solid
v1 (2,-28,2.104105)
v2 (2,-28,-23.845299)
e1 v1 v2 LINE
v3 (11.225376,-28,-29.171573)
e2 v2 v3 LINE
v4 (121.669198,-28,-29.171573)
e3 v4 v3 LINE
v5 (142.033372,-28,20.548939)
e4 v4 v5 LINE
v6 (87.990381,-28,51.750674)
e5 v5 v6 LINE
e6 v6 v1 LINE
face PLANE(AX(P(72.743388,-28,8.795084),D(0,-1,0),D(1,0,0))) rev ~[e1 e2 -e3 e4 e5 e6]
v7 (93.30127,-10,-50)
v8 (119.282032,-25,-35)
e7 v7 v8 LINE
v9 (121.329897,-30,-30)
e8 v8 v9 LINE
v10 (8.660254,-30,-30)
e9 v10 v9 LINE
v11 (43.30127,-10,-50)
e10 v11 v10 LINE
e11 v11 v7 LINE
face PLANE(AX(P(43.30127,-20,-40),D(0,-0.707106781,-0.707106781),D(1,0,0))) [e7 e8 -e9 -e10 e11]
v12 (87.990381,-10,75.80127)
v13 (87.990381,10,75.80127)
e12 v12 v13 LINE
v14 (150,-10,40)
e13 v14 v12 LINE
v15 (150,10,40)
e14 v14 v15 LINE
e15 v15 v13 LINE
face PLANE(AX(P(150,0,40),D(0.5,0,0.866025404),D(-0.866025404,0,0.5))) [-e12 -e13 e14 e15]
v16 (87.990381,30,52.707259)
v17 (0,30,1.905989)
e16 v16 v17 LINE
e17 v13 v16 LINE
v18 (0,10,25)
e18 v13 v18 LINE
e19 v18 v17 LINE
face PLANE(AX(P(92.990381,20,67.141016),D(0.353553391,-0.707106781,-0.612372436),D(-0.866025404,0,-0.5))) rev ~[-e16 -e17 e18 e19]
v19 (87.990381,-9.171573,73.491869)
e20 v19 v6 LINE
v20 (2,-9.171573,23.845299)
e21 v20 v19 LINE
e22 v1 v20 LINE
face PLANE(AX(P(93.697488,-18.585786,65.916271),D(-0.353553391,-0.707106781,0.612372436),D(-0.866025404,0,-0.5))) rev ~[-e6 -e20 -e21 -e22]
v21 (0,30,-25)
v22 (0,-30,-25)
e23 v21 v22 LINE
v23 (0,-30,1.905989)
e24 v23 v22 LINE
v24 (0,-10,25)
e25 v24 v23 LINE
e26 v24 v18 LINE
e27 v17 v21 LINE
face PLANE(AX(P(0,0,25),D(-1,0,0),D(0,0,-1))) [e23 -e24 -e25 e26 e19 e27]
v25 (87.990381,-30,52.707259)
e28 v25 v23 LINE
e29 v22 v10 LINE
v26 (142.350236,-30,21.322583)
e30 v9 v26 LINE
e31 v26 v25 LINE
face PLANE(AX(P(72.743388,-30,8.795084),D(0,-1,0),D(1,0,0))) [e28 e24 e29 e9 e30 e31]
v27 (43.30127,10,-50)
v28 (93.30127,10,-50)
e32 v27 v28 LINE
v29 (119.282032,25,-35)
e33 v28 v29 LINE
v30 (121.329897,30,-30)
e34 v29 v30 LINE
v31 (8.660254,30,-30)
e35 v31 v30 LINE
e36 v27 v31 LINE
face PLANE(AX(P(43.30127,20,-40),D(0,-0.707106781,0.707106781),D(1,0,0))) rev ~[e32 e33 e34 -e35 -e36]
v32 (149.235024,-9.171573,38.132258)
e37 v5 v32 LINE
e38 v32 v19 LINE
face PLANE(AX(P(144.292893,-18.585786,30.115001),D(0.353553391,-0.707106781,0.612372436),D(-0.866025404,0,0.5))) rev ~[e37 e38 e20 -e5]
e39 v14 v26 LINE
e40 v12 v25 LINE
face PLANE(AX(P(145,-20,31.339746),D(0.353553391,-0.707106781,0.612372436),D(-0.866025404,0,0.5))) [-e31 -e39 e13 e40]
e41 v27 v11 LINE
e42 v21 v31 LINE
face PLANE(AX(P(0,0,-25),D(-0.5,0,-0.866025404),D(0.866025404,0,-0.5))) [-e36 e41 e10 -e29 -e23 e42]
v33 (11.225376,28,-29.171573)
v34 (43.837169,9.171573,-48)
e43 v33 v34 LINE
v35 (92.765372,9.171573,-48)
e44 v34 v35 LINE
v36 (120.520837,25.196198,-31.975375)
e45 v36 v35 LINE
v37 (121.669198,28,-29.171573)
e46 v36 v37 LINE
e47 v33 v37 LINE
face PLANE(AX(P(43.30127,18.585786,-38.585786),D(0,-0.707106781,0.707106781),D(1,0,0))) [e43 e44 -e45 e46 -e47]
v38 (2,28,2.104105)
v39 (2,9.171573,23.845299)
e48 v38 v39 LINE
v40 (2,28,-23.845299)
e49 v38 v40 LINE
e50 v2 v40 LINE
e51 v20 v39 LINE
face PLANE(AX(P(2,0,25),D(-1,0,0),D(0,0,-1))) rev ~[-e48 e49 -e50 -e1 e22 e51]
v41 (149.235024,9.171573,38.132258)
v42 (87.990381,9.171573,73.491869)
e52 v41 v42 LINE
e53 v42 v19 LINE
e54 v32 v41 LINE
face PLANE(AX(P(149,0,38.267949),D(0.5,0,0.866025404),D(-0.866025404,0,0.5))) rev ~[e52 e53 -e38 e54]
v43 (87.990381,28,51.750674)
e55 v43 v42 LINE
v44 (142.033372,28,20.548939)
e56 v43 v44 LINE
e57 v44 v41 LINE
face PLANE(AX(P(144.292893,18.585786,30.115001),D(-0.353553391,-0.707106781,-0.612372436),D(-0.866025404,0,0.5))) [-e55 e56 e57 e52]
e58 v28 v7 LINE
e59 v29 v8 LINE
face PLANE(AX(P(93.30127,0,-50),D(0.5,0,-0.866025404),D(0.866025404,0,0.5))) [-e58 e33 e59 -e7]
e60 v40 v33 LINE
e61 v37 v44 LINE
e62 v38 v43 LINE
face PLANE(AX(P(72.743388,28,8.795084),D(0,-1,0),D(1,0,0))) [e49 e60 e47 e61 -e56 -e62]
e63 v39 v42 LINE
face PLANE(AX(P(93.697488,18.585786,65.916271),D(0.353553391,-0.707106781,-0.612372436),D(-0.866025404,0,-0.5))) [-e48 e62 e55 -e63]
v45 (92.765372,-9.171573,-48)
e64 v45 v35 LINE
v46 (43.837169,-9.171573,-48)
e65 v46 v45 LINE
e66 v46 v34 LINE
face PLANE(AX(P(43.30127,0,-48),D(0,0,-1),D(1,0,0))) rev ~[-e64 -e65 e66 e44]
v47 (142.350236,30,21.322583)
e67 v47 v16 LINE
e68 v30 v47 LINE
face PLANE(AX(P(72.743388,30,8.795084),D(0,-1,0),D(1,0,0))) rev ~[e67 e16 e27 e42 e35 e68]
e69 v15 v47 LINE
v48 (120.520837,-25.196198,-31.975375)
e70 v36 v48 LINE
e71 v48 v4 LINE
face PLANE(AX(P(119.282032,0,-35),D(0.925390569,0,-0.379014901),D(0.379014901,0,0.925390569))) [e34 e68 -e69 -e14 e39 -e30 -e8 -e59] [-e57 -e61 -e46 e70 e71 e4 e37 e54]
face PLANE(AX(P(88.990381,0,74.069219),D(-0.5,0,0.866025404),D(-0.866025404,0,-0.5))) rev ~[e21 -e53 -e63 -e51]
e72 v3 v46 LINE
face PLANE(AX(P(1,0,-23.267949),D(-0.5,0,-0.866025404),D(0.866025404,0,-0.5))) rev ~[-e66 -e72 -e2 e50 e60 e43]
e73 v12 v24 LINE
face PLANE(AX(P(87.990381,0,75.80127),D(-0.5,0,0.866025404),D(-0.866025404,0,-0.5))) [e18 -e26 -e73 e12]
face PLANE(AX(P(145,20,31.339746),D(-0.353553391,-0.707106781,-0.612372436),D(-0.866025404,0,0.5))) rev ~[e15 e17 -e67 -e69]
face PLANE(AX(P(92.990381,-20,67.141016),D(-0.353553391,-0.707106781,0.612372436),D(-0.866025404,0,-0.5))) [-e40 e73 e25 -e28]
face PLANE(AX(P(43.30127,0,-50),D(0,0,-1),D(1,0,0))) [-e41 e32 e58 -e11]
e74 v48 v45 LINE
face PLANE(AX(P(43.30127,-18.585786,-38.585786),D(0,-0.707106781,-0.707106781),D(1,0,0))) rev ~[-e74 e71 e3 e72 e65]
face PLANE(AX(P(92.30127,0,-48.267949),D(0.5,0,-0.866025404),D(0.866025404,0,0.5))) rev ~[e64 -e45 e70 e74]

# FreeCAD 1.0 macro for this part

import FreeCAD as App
import Part
import Sketcher
from FreeCAD import Vector
Q = App.Units.Quantity


def edges_at(feature, points):
    """Names of the edges that pass closest to the given points."""
    edges = feature.Shape.Edges
    near = lambda p: min(range(len(edges)), key=lambda i: edges[i].distToShape(Part.Vertex(*p))[0])
    return sorted({f"Edge{near(p) + 1}" for p in points})


def faces_at(feature, points):
    """Names of the faces that lie closest to the given points."""
    faces = feature.Shape.Faces
    near = lambda p: min(range(len(faces)), key=lambda i: faces[i].distToShape(Part.Vertex(*p))[0])
    return sorted({f"Face{near(p) + 1}" for p in points})

doc = App.newDocument("Part")
params = doc.addObject("Spreadsheet::Sheet", "Params")
for row, (alias, value) in enumerate([
    ("sketch1_width", "50 mm"),
    ("sketch1_length", "50 mm"),
    ("sketch1_length2", "30 mm"),
    ("pad1_length", "60 mm"),
    ("chamfer_size", "20 mm"),
    ("thickness_wall", "2 mm"),
], start=1):
    params.set(f"A{row}", alias)
    params.set(f"B{row}", "=" + value)
    params.setAlias(f"B{row}", alias)

body = doc.addObject("PartDesign::Body", "Body")

sketch1 = body.newObject("Sketcher::SketchObject", "Sketch")
sketch1.AttachmentSupport = (doc.getObject("XZ_Plane"), [""])
sketch1.MapMode = "FlatFace"
sketch1.addGeometry(Part.LineSegment(Vector(0, 25, 0), Vector(0, -25, 0)), False)
sketch1.addGeometry(Part.LineSegment(Vector(0, -25, 0), Vector(43, -50, 0)), False)
sketch1.addGeometry(Part.LineSegment(Vector(43, -50, 0), Vector(93, -50, 0)), False)
sketch1.addGeometry(Part.LineSegment(Vector(93, -50, 0), Vector(119, -35, 0)), False)
sketch1.addGeometry(Part.LineSegment(Vector(119, -35, 0), Vector(150, 40, 0)), False)
sketch1.addGeometry(Part.LineSegment(Vector(150, 40, 0), Vector(88, 76, 0)), False)
sketch1.addGeometry(Part.LineSegment(Vector(88, 76, 0), Vector(0, 25, 0)), False)
sketch1.addConstraint(Sketcher.Constraint("Coincident", 0, 2, 1, 1))
sketch1.addConstraint(Sketcher.Constraint("Coincident", 1, 2, 2, 1))
sketch1.addConstraint(Sketcher.Constraint("Coincident", 2, 2, 3, 1))
sketch1.addConstraint(Sketcher.Constraint("Coincident", 3, 2, 4, 1))
sketch1.addConstraint(Sketcher.Constraint("Coincident", 4, 2, 5, 1))
sketch1.addConstraint(Sketcher.Constraint("Coincident", 5, 2, 6, 1))
sketch1.addConstraint(Sketcher.Constraint("Coincident", 6, 2, 0, 1))
sketch1.addConstraint(Sketcher.Constraint("Vertical", 0))
sketch1.addConstraint(Sketcher.Constraint("Horizontal", 2))
sketch1.addConstraint(Sketcher.Constraint("Symmetric", 0, 2, 6, 2, -1, 1))
sketch1.addConstraint(Sketcher.Constraint("Parallel", 1, 5))
sketch1.addConstraint(Sketcher.Constraint("Parallel", 3, 6))
sketch1.addConstraint(Sketcher.Constraint("Equal", 2, 0))
sketch1.addConstraint(Sketcher.Constraint("DistanceX", 2, 1, 2, 2, 50.0))
sketch1.addConstraint(Sketcher.Constraint("Angle", 1, Q("-30 deg")))
sketch1.addConstraint(Sketcher.Constraint("Angle", 3, Q("30 deg")))
sketch1.addConstraint(Sketcher.Constraint("Distance", 1, 50.0))
sketch1.addConstraint(Sketcher.Constraint("Distance", 3, 30.0))
sketch1.addConstraint(Sketcher.Constraint("DistanceX", -1, 1, 4, 2, 150.0))
sketch1.addConstraint(Sketcher.Constraint("DistanceY", -1, 1, 4, 2, 40.0))
sketch1.setExpression("Constraints[13]", "Params.sketch1_width")
sketch1.setExpression("Constraints[16]", "Params.sketch1_length")
sketch1.setExpression("Constraints[17]", "Params.sketch1_length2")
pad1 = body.newObject("PartDesign::Pad", "Pad")
pad1.Profile = sketch1
pad1.setExpression("Length", "Params.pad1_length")
pad1.Midplane = True
doc.recompute()

chamfer = body.newObject("PartDesign::Chamfer", "Chamfer")
chamfer.Base = (pad1, edges_at(pad1, [
    (68.301, -30, -50),
    (68.301, 30, -50),
    (43.995, -30, 50.401),
    (118.995, -30, 57.901),
    (118.995, 30, 57.901),
    (43.995, 30, 50.401),
]))
chamfer.setExpression("Size", "Params.chamfer_size")
doc.recompute()

thickness = body.newObject("PartDesign::Thickness", "Thickness")
thickness.Base = (chamfer, faces_at(chamfer, [(134.641, 0, 2.5)]))
thickness.setExpression("Value", "Params.thickness_wall")
thickness.Reversed = True
thickness.Join = "Arc"

doc.recompute()
